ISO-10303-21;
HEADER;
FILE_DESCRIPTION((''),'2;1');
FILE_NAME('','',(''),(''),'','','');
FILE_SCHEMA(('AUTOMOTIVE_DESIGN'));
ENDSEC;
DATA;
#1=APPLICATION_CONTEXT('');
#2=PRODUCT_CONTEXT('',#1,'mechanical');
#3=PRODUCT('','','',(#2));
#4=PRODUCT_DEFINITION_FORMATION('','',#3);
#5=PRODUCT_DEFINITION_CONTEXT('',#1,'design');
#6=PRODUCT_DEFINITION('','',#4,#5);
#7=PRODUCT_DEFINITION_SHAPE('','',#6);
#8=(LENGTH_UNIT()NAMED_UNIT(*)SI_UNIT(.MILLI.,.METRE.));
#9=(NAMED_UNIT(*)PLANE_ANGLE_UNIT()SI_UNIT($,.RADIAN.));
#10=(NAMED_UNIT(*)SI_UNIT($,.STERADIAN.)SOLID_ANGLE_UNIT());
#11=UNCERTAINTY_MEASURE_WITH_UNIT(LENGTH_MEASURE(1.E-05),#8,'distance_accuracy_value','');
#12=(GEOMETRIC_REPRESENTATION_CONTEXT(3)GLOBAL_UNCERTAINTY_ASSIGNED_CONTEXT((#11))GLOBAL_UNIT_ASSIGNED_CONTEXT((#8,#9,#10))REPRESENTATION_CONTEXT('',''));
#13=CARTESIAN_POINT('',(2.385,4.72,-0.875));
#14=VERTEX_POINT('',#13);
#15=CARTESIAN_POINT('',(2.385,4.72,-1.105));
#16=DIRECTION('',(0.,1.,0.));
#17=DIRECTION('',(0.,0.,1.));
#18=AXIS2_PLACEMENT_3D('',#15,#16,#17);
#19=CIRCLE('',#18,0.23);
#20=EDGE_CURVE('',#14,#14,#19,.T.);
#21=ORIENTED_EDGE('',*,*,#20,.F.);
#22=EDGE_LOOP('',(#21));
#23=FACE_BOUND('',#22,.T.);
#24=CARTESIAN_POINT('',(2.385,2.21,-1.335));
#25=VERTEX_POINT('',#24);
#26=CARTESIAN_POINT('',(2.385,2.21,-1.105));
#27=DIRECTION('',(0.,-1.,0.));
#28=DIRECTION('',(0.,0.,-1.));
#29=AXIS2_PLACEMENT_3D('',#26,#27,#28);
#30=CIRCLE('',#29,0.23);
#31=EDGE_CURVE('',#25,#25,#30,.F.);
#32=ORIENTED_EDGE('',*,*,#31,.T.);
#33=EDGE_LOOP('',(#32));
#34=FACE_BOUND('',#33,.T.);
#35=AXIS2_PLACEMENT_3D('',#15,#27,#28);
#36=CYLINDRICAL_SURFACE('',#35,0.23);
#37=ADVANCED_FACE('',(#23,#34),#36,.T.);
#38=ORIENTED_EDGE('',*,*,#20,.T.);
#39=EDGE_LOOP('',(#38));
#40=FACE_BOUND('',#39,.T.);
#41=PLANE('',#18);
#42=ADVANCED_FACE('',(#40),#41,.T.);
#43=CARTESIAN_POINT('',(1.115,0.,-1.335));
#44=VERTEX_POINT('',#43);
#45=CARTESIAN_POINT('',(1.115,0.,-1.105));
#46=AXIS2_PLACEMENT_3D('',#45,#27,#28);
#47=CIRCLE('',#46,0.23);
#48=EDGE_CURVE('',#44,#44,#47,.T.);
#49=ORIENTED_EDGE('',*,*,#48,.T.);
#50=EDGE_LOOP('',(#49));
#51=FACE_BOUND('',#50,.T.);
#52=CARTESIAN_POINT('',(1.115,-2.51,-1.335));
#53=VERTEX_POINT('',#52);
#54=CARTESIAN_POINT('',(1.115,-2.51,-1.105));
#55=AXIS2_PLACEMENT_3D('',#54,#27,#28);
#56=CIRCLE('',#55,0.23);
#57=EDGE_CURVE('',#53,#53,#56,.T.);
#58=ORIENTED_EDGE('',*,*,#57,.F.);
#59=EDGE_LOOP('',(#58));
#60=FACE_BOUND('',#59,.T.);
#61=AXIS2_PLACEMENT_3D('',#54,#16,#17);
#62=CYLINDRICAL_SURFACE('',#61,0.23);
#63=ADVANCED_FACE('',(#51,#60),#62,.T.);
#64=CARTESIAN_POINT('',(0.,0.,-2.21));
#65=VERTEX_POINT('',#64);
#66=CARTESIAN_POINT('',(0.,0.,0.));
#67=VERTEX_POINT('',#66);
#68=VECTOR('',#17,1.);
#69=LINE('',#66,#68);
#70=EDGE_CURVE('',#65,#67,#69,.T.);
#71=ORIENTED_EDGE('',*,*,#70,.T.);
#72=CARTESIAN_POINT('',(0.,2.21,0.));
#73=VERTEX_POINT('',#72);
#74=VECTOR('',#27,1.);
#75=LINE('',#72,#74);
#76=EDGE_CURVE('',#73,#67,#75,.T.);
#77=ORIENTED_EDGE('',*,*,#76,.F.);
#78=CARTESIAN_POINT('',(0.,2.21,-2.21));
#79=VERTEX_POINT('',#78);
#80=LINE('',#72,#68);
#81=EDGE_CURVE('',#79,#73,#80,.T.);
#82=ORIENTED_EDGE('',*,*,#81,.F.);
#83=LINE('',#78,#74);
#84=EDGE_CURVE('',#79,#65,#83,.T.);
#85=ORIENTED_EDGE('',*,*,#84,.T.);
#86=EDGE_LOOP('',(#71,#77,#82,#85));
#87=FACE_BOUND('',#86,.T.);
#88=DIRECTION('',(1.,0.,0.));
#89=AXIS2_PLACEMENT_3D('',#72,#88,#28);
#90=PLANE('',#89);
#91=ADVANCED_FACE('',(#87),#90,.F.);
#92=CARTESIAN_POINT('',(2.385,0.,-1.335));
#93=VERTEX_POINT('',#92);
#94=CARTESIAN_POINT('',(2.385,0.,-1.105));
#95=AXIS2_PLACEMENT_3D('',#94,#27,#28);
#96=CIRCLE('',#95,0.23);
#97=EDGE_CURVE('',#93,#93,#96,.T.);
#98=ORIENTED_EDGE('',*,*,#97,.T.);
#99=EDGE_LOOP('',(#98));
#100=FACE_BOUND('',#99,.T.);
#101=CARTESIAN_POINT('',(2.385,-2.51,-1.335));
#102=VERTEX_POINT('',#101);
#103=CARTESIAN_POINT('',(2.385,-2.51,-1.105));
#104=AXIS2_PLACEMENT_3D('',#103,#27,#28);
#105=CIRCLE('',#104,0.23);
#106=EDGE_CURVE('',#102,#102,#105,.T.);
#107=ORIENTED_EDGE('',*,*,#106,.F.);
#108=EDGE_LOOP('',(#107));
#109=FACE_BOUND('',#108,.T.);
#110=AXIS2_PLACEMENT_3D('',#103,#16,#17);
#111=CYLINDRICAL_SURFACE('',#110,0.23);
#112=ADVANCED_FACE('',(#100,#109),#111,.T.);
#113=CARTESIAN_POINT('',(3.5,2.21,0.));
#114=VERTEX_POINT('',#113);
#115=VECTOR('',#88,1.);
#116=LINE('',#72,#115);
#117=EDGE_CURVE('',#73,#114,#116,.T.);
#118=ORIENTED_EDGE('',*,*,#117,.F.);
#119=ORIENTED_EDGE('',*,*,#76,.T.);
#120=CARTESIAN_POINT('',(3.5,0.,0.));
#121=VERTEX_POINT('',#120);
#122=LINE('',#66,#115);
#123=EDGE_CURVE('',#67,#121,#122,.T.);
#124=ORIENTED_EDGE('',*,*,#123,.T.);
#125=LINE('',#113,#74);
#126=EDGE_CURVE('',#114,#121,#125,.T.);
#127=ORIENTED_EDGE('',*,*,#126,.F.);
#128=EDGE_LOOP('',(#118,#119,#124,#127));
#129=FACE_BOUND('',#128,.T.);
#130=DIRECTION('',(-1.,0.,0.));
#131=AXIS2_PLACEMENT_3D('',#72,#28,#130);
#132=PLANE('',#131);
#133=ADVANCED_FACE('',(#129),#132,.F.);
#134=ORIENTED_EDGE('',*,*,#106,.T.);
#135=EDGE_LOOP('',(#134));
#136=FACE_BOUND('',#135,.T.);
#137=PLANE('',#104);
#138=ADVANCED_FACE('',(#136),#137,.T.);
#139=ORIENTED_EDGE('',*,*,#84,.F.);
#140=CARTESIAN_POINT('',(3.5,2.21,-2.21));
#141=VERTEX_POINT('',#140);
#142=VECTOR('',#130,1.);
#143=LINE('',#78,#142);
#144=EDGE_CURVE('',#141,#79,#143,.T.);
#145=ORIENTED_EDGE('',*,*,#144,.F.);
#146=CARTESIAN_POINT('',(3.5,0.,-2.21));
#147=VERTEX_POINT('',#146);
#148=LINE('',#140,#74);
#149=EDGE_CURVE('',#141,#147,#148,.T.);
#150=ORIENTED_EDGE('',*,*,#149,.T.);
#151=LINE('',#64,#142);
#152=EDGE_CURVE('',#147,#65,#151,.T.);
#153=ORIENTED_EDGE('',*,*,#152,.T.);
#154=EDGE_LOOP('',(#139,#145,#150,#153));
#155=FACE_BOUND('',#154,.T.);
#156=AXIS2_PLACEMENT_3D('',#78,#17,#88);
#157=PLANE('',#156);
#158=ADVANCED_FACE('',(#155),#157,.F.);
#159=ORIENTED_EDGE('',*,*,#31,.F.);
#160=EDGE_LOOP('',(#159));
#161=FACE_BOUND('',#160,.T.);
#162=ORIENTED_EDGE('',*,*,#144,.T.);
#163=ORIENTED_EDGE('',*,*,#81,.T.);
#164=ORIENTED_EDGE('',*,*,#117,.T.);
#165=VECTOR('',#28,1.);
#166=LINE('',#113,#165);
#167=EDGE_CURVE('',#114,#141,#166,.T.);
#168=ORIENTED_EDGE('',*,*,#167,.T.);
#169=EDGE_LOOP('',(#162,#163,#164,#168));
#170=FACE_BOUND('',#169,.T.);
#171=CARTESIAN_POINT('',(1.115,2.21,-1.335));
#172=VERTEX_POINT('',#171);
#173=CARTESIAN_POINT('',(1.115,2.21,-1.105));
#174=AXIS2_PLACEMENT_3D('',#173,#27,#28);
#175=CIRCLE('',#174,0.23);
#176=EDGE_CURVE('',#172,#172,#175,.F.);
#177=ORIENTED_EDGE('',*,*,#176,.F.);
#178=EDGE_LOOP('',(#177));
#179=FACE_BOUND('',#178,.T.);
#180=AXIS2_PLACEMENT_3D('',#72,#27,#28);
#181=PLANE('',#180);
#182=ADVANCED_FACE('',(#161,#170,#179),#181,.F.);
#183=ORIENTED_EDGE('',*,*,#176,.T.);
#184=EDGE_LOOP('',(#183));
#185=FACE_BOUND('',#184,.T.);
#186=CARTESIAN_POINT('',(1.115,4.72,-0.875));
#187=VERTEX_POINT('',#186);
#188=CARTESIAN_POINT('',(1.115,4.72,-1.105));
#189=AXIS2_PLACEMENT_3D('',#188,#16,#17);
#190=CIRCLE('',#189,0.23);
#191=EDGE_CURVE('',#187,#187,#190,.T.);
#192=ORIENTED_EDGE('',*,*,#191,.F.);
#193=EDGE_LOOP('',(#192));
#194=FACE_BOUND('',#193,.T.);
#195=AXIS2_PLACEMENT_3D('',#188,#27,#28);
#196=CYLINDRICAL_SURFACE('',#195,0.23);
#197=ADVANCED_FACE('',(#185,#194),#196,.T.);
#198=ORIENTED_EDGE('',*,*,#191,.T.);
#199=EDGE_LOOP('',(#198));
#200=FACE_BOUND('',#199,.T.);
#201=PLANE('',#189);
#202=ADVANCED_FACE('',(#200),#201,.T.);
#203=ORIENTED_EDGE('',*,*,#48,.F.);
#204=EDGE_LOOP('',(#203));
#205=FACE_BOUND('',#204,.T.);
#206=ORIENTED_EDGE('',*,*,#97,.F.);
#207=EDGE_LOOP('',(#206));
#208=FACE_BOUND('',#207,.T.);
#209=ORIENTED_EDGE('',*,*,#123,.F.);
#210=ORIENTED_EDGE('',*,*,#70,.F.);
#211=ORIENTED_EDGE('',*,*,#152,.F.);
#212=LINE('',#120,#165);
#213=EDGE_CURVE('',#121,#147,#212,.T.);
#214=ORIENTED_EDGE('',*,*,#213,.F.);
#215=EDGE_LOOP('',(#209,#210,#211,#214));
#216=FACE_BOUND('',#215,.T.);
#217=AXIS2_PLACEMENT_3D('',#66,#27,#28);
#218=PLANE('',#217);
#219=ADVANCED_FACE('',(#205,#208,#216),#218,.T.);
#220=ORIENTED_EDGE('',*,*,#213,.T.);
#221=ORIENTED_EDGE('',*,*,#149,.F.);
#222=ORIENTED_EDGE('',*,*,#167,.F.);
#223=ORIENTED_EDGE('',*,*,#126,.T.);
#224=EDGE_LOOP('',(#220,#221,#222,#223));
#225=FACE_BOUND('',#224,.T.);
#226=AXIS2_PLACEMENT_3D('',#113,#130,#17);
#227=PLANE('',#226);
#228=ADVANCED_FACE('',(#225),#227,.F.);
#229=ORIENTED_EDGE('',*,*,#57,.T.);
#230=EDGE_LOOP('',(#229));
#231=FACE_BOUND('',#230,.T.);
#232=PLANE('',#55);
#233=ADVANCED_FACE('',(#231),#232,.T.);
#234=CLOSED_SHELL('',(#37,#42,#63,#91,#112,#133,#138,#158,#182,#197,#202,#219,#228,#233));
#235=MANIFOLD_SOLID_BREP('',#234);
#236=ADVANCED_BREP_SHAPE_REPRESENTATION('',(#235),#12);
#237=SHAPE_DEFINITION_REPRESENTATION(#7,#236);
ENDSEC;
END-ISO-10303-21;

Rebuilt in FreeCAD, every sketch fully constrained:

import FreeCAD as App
import Part
import Sketcher

V = App.Vector

doc = App.newDocument("Part")
body = doc.addObject("PartDesign::Body", "Body")

# Sketch on XZ plane
sketch1 = doc.addObject("Sketcher::SketchObject", "Sketch")
body.addObject(sketch1)
sketch1.AttachmentSupport = (doc.XZ_Plane, [""])
sketch1.MapMode = "FlatFace"
sketch1.addGeometry([
    Part.LineSegment(V(0, -2.21, 0), V(0, 0, 0)),
    Part.LineSegment(V(0, 0, 0), V(3.5, 0, 0)),
    Part.LineSegment(V(3.5, 0, 0), V(3.5, -2.21, 0)),
    Part.LineSegment(V(3.5, -2.21, 0), V(0, -2.21, 0)),
], False)
sketch1.addConstraint([
    Sketcher.Constraint("Coincident", 0, 2, 1, 1),
    Sketcher.Constraint("Coincident", 1, 2, 2, 1),
    Sketcher.Constraint("Coincident", 2, 2, 3, 1),
    Sketcher.Constraint("Coincident", 3, 2, 0, 1),
    Sketcher.Constraint("Vertical", 0),
    Sketcher.Constraint("Horizontal", 1),
    Sketcher.Constraint("Vertical", 2),
    Sketcher.Constraint("Horizontal", 3),
    Sketcher.Constraint("Coincident", 0, 2, -1, 1),
    Sketcher.Constraint("DistanceX", 1, 1, 1, 2, 3.5),
    Sketcher.Constraint("DistanceY", 0, 1, 0, 2, 2.21),
])
pad1 = doc.addObject("PartDesign::Pad", "Pad")
body.addObject(pad1)
pad1.Profile = sketch1
pad1.Length = 2.21
pad1.Reversed = True

# Sketch on XZ plane
sketch2 = doc.addObject("Sketcher::SketchObject", "Sketch001")
body.addObject(sketch2)
sketch2.AttachmentSupport = (doc.XZ_Plane, [""])
sketch2.MapMode = "FlatFace"
sketch2.addGeometry([
    Part.Circle(V(1.115, -1.105, 0), V(0, 0, 1), 0.23),
    Part.Circle(V(2.385, -1.105, 0), V(0, 0, 1), 0.23),
], False)
sketch2.addConstraint([
    Sketcher.Constraint("Equal", 0, 1),
    Sketcher.Constraint("Horizontal", 0, 3, 1, 3),
    Sketcher.Constraint("Diameter", 0, 0.46),
    Sketcher.Constraint("DistanceX", 0, 3, 1, 3, 1.27),
    Sketcher.Constraint("DistanceX", -1, 1, 0, 3, 1.115),
    Sketcher.Constraint("DistanceY", 0, 3, -1, 1, 1.105),
])
pad2 = doc.addObject("PartDesign::Pad", "Pad001")
body.addObject(pad2)
pad2.Profile = sketch2
pad2.Length = 2.51

# Sketch on XZ plane
sketch3 = doc.addObject("Sketcher::SketchObject", "Sketch002")
body.addObject(sketch3)
sketch3.AttachmentSupport = (doc.XZ_Plane, [""])
sketch3.MapMode = "FlatFace"
sketch3.AttachmentOffset = App.Placement(V(0, 0, -4.72), App.Rotation())
sketch3.addGeometry([
    Part.Circle(V(2.385, -1.105, 0), V(0, 0, 1), 0.23),
    Part.Circle(V(1.115, -1.105, 0), V(0, 0, 1), 0.23),
], False)
sketch3.addConstraint([
    Sketcher.Constraint("Equal", 0, 1),
    Sketcher.Constraint("Horizontal", 0, 3, 1, 3),
    Sketcher.Constraint("Diameter", 0, 0.46),
    Sketcher.Constraint("DistanceX", 1, 3, 0, 3, 1.27),
    Sketcher.Constraint("DistanceX", -1, 1, 0, 3, 2.385),
    Sketcher.Constraint("DistanceY", 0, 3, -1, 1, 1.105),
])
pad3 = doc.addObject("PartDesign::Pad", "Pad002")
body.addObject(pad3)
pad3.Profile = sketch3
pad3.Length = 2.51

doc.recompute()
